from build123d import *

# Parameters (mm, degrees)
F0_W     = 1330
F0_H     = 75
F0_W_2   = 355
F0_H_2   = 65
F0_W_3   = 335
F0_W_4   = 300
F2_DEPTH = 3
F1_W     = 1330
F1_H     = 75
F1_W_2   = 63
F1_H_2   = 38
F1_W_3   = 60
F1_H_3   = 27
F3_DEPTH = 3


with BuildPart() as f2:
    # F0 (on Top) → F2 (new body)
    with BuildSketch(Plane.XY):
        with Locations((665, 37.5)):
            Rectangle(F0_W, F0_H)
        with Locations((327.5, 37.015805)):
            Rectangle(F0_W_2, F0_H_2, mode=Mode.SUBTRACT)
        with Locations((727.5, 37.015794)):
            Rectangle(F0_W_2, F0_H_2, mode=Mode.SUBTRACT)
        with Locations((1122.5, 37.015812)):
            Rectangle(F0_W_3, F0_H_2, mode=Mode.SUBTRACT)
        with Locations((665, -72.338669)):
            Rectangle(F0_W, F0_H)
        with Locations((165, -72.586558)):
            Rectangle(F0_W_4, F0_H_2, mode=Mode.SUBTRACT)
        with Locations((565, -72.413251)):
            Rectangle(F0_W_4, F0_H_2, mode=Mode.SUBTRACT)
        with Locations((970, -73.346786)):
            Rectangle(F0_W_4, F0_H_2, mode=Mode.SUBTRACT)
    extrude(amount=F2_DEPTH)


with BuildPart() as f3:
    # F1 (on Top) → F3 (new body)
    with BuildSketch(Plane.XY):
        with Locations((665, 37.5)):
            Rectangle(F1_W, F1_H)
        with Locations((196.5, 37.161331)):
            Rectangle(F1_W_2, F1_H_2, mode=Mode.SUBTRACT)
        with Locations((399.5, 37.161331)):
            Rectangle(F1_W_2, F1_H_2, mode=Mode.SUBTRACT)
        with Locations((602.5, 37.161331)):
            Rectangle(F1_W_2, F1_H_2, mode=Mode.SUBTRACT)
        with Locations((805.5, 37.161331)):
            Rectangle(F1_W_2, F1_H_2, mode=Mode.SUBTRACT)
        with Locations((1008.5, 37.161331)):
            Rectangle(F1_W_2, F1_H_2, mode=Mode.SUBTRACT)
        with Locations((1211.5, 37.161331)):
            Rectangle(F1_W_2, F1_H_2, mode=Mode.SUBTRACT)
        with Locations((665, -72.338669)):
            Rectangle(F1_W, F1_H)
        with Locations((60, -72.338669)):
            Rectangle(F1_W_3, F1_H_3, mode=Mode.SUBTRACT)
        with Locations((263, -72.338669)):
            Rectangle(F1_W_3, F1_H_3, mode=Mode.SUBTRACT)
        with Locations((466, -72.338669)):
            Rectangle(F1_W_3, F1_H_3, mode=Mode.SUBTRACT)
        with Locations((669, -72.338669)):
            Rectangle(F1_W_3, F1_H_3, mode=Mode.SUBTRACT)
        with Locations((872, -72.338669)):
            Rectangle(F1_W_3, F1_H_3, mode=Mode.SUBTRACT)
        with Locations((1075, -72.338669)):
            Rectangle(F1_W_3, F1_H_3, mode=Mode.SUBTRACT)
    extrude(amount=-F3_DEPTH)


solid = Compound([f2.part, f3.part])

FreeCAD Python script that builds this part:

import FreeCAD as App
import Part
import Sketcher
from FreeCAD import Vector


def add_polygon(sketch, points):
    """Adds a closed chain of lines whose ends are joined by coincident constraints."""
    first, n = sketch.GeometryCount, len(points)
    for a, b in zip(points, points[1:] + points[:1]):
        sketch.addGeometry(Part.LineSegment(App.Vector(*a, 0), App.Vector(*b, 0)), False)
    for i in range(n):
        sketch.addConstraint(Sketcher.Constraint("Coincident", first + i, 2, first + (i + 1) % n, 1))

doc = App.newDocument("Part")
body = doc.addObject("PartDesign::Body", "Body")
body.AllowCompound = True

# Sketch on XY plane
sketch1 = body.newObject("Sketcher::SketchObject", "Sketch")
sketch1.AttachmentSupport = (doc.getObject("XY_Plane"), [""])
sketch1.MapMode = "FlatFace"
add_polygon(sketch1, [(0, 75), (0, 0), (1330, 0), (1330, 75)])  # lines 0-3
add_polygon(sketch1, [(905, 4.515794), (550, 4.515794), (550, 69.515794), (905, 69.515794)])  # lines 4-7
add_polygon(sketch1, [(505, 4.515805), (150, 4.515805), (150, 69.515805), (505, 69.515805)])  # lines 8-11
add_polygon(sketch1, [(1290, 4.515812), (955, 4.515812), (955, 69.515812), (1290, 69.515812)])  # lines 12-15
add_polygon(sketch1, [(0, -34.838669), (0, -109.838669), (1330, -109.838669), (1330, -34.838669)])  # lines 16-19
add_polygon(sketch1, [(1120, -105.846786), (820, -105.846786), (820, -40.846786), (1120, -40.846786)])  # lines 20-23
add_polygon(sketch1, [(315, -105.086558), (15, -105.086558), (15, -40.086558), (315, -40.086558)])  # lines 24-27
add_polygon(sketch1, [(715, -104.913251), (415, -104.913251), (415, -39.913251), (715, -39.913251)])  # lines 28-31
sketch1.addConstraint(Sketcher.Constraint("Vertical", 0))
sketch1.addConstraint(Sketcher.Constraint("Horizontal", 1))
sketch1.addConstraint(Sketcher.Constraint("Vertical", 2))
sketch1.addConstraint(Sketcher.Constraint("Horizontal", 3))
sketch1.addConstraint(Sketcher.Constraint("Horizontal", 4))
sketch1.addConstraint(Sketcher.Constraint("Vertical", 5))
sketch1.addConstraint(Sketcher.Constraint("Horizontal", 6))
sketch1.addConstraint(Sketcher.Constraint("Vertical", 7))
sketch1.addConstraint(Sketcher.Constraint("Horizontal", 8))
sketch1.addConstraint(Sketcher.Constraint("Vertical", 9))
sketch1.addConstraint(Sketcher.Constraint("Horizontal", 10))
sketch1.addConstraint(Sketcher.Constraint("Vertical", 11))
sketch1.addConstraint(Sketcher.Constraint("Horizontal", 12))
sketch1.addConstraint(Sketcher.Constraint("Vertical", 13))
sketch1.addConstraint(Sketcher.Constraint("Horizontal", 14))
sketch1.addConstraint(Sketcher.Constraint("Vertical", 15))
sketch1.addConstraint(Sketcher.Constraint("Vertical", 16))
sketch1.addConstraint(Sketcher.Constraint("Horizontal", 17))
sketch1.addConstraint(Sketcher.Constraint("Vertical", 18))
sketch1.addConstraint(Sketcher.Constraint("Horizontal", 19))
sketch1.addConstraint(Sketcher.Constraint("Horizontal", 20))
sketch1.addConstraint(Sketcher.Constraint("Vertical", 21))
sketch1.addConstraint(Sketcher.Constraint("Horizontal", 22))
sketch1.addConstraint(Sketcher.Constraint("Vertical", 23))
sketch1.addConstraint(Sketcher.Constraint("Horizontal", 24))
sketch1.addConstraint(Sketcher.Constraint("Vertical", 25))
sketch1.addConstraint(Sketcher.Constraint("Horizontal", 26))
sketch1.addConstraint(Sketcher.Constraint("Vertical", 27))
sketch1.addConstraint(Sketcher.Constraint("Horizontal", 28))
sketch1.addConstraint(Sketcher.Constraint("Vertical", 29))
sketch1.addConstraint(Sketcher.Constraint("Horizontal", 30))
sketch1.addConstraint(Sketcher.Constraint("Vertical", 31))
sketch1.addConstraint(Sketcher.Constraint("Coincident", 0, 2, -1, 1))
sketch1.addConstraint(Sketcher.Constraint("PointOnObject", 16, 2, -2))
sketch1.addConstraint(Sketcher.Constraint("Vertical", 2, 2, 17, 2))
sketch1.addConstraint(Sketcher.Constraint("Equal", 6, 8))
sketch1.addConstraint(Sketcher.Constraint("Equal", 22, 24))
sketch1.addConstraint(Sketcher.Constraint("Equal", 26, 28))
sketch1.addConstraint(Sketcher.Constraint("Equal", 7, 9))
sketch1.addConstraint(Sketcher.Constraint("Equal", 11, 13))
sketch1.addConstraint(Sketcher.Constraint("Equal", 2, 16))
sketch1.addConstraint(Sketcher.Constraint("Equal", 15, 21))
sketch1.addConstraint(Sketcher.Constraint("Equal", 23, 25))
sketch1.addConstraint(Sketcher.Constraint("Equal", 27, 29))
sketch1.addConstraint(Sketcher.Constraint("DistanceX", 1, 1, 1, 2, 1330.0))
sketch1.addConstraint(Sketcher.Constraint("DistanceX", 4, 2, 4, 1, 355.0))
sketch1.addConstraint(Sketcher.Constraint("DistanceX", 12, 2, 12, 1, 335.0))
sketch1.addConstraint(Sketcher.Constraint("DistanceX", 20, 2, 20, 1, 300.0))
sketch1.addConstraint(Sketcher.Constraint("DistanceY", 0, 2, 0, 1, 75.0))
sketch1.addConstraint(Sketcher.Constraint("DistanceY", 5, 1, 5, 2, 65.0))
sketch1.addConstraint(Sketcher.Constraint("DistanceX", -1, 1, 4, 2, 550.0))
sketch1.addConstraint(Sketcher.Constraint("DistanceX", -1, 1, 8, 2, 150.0))
sketch1.addConstraint(Sketcher.Constraint("DistanceX", -1, 1, 12, 2, 955.0))
sketch1.addConstraint(Sketcher.Constraint("DistanceX", -1, 1, 20, 2, 820.0))
sketch1.addConstraint(Sketcher.Constraint("DistanceX", -1, 1, 24, 2, 15.0))
sketch1.addConstraint(Sketcher.Constraint("DistanceX", -1, 1, 28, 2, 415.0))
sketch1.addConstraint(Sketcher.Constraint("DistanceY", 20, 2, 13, 2, 175.362598))
sketch1.addConstraint(Sketcher.Constraint("DistanceY", -1, 1, 13, 2, 69.515812))
sketch1.addConstraint(Sketcher.Constraint("DistanceY", 16, 2, -1, 1, 109.838669))
sketch1.addConstraint(Sketcher.Constraint("DistanceY", 28, 2, -1, 1, 104.913251))
sketch1.addConstraint(Sketcher.Constraint("DistanceY", 8, 2, 5, 2, 64.999989))
sketch1.addConstraint(Sketcher.Constraint("DistanceY", 20, 2, 7, 2, 110.36258))
sketch1.addConstraint(Sketcher.Constraint("DistanceY", 16, 2, 24, 2, 4.752111))
pad1 = body.newObject("PartDesign::Pad", "Pad")
pad1.Profile = sketch1
pad1.Length = 3
body2 = doc.addObject("PartDesign::Body", "Body001")
body2.AllowCompound = True

# Sketch on XY plane
sketch2 = body2.newObject("Sketcher::SketchObject", "Sketch001")
sketch2.AttachmentSupport = (doc.getObject("XY_Plane001"), [""])
sketch2.MapMode = "FlatFace"
add_polygon(sketch2, [(0, 75), (0, 0), (1330, 0), (1330, 75)])  # lines 0-3
add_polygon(sketch2, [(228, 18.161331), (165, 18.161331), (165, 56.161331), (228, 56.161331)])  # lines 4-7
add_polygon(sketch2, [(431, 18.161331), (368, 18.161331), (368, 56.161331), (431, 56.161331)])  # lines 8-11
add_polygon(sketch2, [(634, 18.161331), (571, 18.161331), (571, 56.161331), (634, 56.161331)])  # lines 12-15
add_polygon(sketch2, [(837, 18.161331), (774, 18.161331), (774, 56.161331), (837, 56.161331)])  # lines 16-19
add_polygon(sketch2, [(1040, 18.161331), (977, 18.161331), (977, 56.161331), (1040, 56.161331)])  # lines 20-23
add_polygon(sketch2, [(1243, 18.161331), (1180, 18.161331), (1180, 56.161331), (1243, 56.161331)])  # lines 24-27
add_polygon(sketch2, [(0, -34.838669), (0, -109.838669), (1330, -109.838669), (1330, -34.838669)])  # lines 28-31
add_polygon(sketch2, [(90, -85.838669), (30, -85.838669), (30, -58.838669), (90, -58.838669)])  # lines 32-35
add_polygon(sketch2, [(293, -85.838669), (233, -85.838669), (233, -58.838669), (293, -58.838669)])  # lines 36-39
add_polygon(sketch2, [(496, -85.838669), (436, -85.838669), (436, -58.838669), (496, -58.838669)])  # lines 40-43
add_polygon(sketch2, [(699, -85.838669), (639, -85.838669), (639, -58.838669), (699, -58.838669)])  # lines 44-47
add_polygon(sketch2, [(902, -85.838669), (842, -85.838669), (842, -58.838669), (902, -58.838669)])  # lines 48-51
add_polygon(sketch2, [(1105, -85.838669), (1045, -85.838669), (1045, -58.838669), (1105, -58.838669)])  # lines 52-55
sketch2.addConstraint(Sketcher.Constraint("Vertical", 0))
sketch2.addConstraint(Sketcher.Constraint("Horizontal", 1))
sketch2.addConstraint(Sketcher.Constraint("Vertical", 2))
sketch2.addConstraint(Sketcher.Constraint("Horizontal", 3))
sketch2.addConstraint(Sketcher.Constraint("Horizontal", 4))
sketch2.addConstraint(Sketcher.Constraint("Vertical", 5))
sketch2.addConstraint(Sketcher.Constraint("Horizontal", 6))
sketch2.addConstraint(Sketcher.Constraint("Vertical", 7))
sketch2.addConstraint(Sketcher.Constraint("Horizontal", 8))
sketch2.addConstraint(Sketcher.Constraint("Vertical", 9))
sketch2.addConstraint(Sketcher.Constraint("Horizontal", 10))
sketch2.addConstraint(Sketcher.Constraint("Vertical", 11))
sketch2.addConstraint(Sketcher.Constraint("Horizontal", 12))
sketch2.addConstraint(Sketcher.Constraint("Vertical", 13))
sketch2.addConstraint(Sketcher.Constraint("Horizontal", 14))
sketch2.addConstraint(Sketcher.Constraint("Vertical", 15))
sketch2.addConstraint(Sketcher.Constraint("Horizontal", 16))
sketch2.addConstraint(Sketcher.Constraint("Vertical", 17))
sketch2.addConstraint(Sketcher.Constraint("Horizontal", 18))
sketch2.addConstraint(Sketcher.Constraint("Vertical", 19))
sketch2.addConstraint(Sketcher.Constraint("Horizontal", 20))
sketch2.addConstraint(Sketcher.Constraint("Vertical", 21))
sketch2.addConstraint(Sketcher.Constraint("Horizontal", 22))
sketch2.addConstraint(Sketcher.Constraint("Vertical", 23))
sketch2.addConstraint(Sketcher.Constraint("Horizontal", 24))
sketch2.addConstraint(Sketcher.Constraint("Vertical", 25))
sketch2.addConstraint(Sketcher.Constraint("Horizontal", 26))
sketch2.addConstraint(Sketcher.Constraint("Vertical", 27))
sketch2.addConstraint(Sketcher.Constraint("Vertical", 28))
sketch2.addConstraint(Sketcher.Constraint("Horizontal", 29))
sketch2.addConstraint(Sketcher.Constraint("Vertical", 30))
sketch2.addConstraint(Sketcher.Constraint("Horizontal", 31))
sketch2.addConstraint(Sketcher.Constraint("Horizontal", 32))
sketch2.addConstraint(Sketcher.Constraint("Vertical", 33))
sketch2.addConstraint(Sketcher.Constraint("Horizontal", 34))
sketch2.addConstraint(Sketcher.Constraint("Vertical", 35))
sketch2.addConstraint(Sketcher.Constraint("Horizontal", 36))
sketch2.addConstraint(Sketcher.Constraint("Vertical", 37))
sketch2.addConstraint(Sketcher.Constraint("Horizontal", 38))
sketch2.addConstraint(Sketcher.Constraint("Vertical", 39))
sketch2.addConstraint(Sketcher.Constraint("Horizontal", 40))
sketch2.addConstraint(Sketcher.Constraint("Vertical", 41))
sketch2.addConstraint(Sketcher.Constraint("Horizontal", 42))
sketch2.addConstraint(Sketcher.Constraint("Vertical", 43))
sketch2.addConstraint(Sketcher.Constraint("Horizontal", 44))
sketch2.addConstraint(Sketcher.Constraint("Vertical", 45))
sketch2.addConstraint(Sketcher.Constraint("Horizontal", 46))
sketch2.addConstraint(Sketcher.Constraint("Vertical", 47))
sketch2.addConstraint(Sketcher.Constraint("Horizontal", 48))
sketch2.addConstraint(Sketcher.Constraint("Vertical", 49))
sketch2.addConstraint(Sketcher.Constraint("Horizontal", 50))
sketch2.addConstraint(Sketcher.Constraint("Vertical", 51))
sketch2.addConstraint(Sketcher.Constraint("Horizontal", 52))
sketch2.addConstraint(Sketcher.Constraint("Vertical", 53))
sketch2.addConstraint(Sketcher.Constraint("Horizontal", 54))
sketch2.addConstraint(Sketcher.Constraint("Vertical", 55))
sketch2.addConstraint(Sketcher.Constraint("Coincident", 0, 2, -1, 1))
sketch2.addConstraint(Sketcher.Constraint("PointOnObject", 28, 2, -2))
sketch2.addConstraint(Sketcher.Constraint("Horizontal", 7, 2, 8, 2))
sketch2.addConstraint(Sketcher.Constraint("Horizontal", 6, 2, 9, 2))
sketch2.addConstraint(Sketcher.Constraint("Horizontal", 11, 2, 12, 2))
sketch2.addConstraint(Sketcher.Constraint("Horizontal", 10, 2, 13, 2))
sketch2.addConstraint(Sketcher.Constraint("Horizontal", 15, 2, 16, 2))
sketch2.addConstraint(Sketcher.Constraint("Horizontal", 14, 2, 17, 2))
sketch2.addConstraint(Sketcher.Constraint("Horizontal", 19, 2, 20, 2))
sketch2.addConstraint(Sketcher.Constraint("Horizontal", 18, 2, 21, 2))
sketch2.addConstraint(Sketcher.Constraint("Horizontal", 23, 2, 24, 2))
sketch2.addConstraint(Sketcher.Constraint("Horizontal", 22, 2, 25, 2))
sketch2.addConstraint(Sketcher.Constraint("Horizontal", 35, 2, 36, 2))
sketch2.addConstraint(Sketcher.Constraint("Horizontal", 34, 2, 37, 2))
sketch2.addConstraint(Sketcher.Constraint("Horizontal", 39, 2, 40, 2))
sketch2.addConstraint(Sketcher.Constraint("Horizontal", 38, 2, 41, 2))
sketch2.addConstraint(Sketcher.Constraint("Horizontal", 43, 2, 44, 2))
sketch2.addConstraint(Sketcher.Constraint("Horizontal", 42, 2, 45, 2))
sketch2.addConstraint(Sketcher.Constraint("Horizontal", 47, 2, 48, 2))
sketch2.addConstraint(Sketcher.Constraint("Horizontal", 46, 2, 49, 2))
sketch2.addConstraint(Sketcher.Constraint("Horizontal", 51, 2, 52, 2))
sketch2.addConstraint(Sketcher.Constraint("Horizontal", 50, 2, 53, 2))
sketch2.addConstraint(Sketcher.Constraint("Vertical", 2, 2, 29, 2))
sketch2.addConstraint(Sketcher.Constraint("Equal", 6, 8))
sketch2.addConstraint(Sketcher.Constraint("Equal", 10, 12))
sketch2.addConstraint(Sketcher.Constraint("Equal", 14, 16))
sketch2.addConstraint(Sketcher.Constraint("Equal", 18, 20))
sketch2.addConstraint(Sketcher.Constraint("Equal", 22, 24))
sketch2.addConstraint(Sketcher.Constraint("Equal", 34, 36))
sketch2.addConstraint(Sketcher.Constraint("Equal", 38, 40))
sketch2.addConstraint(Sketcher.Constraint("Equal", 42, 44))
sketch2.addConstraint(Sketcher.Constraint("Equal", 46, 48))
sketch2.addConstraint(Sketcher.Constraint("Equal", 50, 52))
sketch2.addConstraint(Sketcher.Constraint("Equal", 2, 28))
sketch2.addConstraint(Sketcher.Constraint("DistanceX", 1, 1, 1, 2, 1330.0))
sketch2.addConstraint(Sketcher.Constraint("DistanceX", 4, 2, 4, 1, 63.0))
sketch2.addConstraint(Sketcher.Constraint("DistanceX", 32, 2, 32, 1, 60.0))
sketch2.addConstraint(Sketcher.Constraint("DistanceY", 0, 2, 0, 1, 75.0))
sketch2.addConstraint(Sketcher.Constraint("DistanceY", 5, 1, 5, 2, 38.0))
sketch2.addConstraint(Sketcher.Constraint("DistanceY", 33, 1, 33, 2, 27.0))
sketch2.addConstraint(Sketcher.Constraint("DistanceX", -1, 1, 4, 2, 165.0))
sketch2.addConstraint(Sketcher.Constraint("DistanceX", -1, 1, 8, 2, 368.0))
sketch2.addConstraint(Sketcher.Constraint("DistanceX", -1, 1, 12, 2, 571.0))
sketch2.addConstraint(Sketcher.Constraint("DistanceX", -1, 1, 16, 2, 774.0))
sketch2.addConstraint(Sketcher.Constraint("DistanceX", -1, 1, 20, 2, 977.0))
sketch2.addConstraint(Sketcher.Constraint("DistanceX", -1, 1, 24, 2, 1180.0))
sketch2.addConstraint(Sketcher.Constraint("DistanceX", -1, 1, 32, 2, 30.0))
sketch2.addConstraint(Sketcher.Constraint("DistanceX", -1, 1, 36, 2, 233.0))
sketch2.addConstraint(Sketcher.Constraint("DistanceX", -1, 1, 40, 2, 436.0))
sketch2.addConstraint(Sketcher.Constraint("DistanceX", -1, 1, 44, 2, 639.0))
sketch2.addConstraint(Sketcher.Constraint("DistanceX", -1, 1, 48, 2, 842.0))
sketch2.addConstraint(Sketcher.Constraint("DistanceX", -1, 1, 52, 2, 1045.0))
sketch2.addConstraint(Sketcher.Constraint("DistanceY", 28, 2, 4, 2, 128.0))
sketch2.addConstraint(Sketcher.Constraint("DistanceY", 28, 2, 32, 2, 24.0))
sketch2.addConstraint(Sketcher.Constraint("DistanceY", -1, 1, 4, 2, 18.161331))
pad2 = body2.newObject("PartDesign::Pad", "Pad001")
pad2.Profile = sketch2
pad2.Length = 3
pad2.Reversed = True

doc.recompute()
